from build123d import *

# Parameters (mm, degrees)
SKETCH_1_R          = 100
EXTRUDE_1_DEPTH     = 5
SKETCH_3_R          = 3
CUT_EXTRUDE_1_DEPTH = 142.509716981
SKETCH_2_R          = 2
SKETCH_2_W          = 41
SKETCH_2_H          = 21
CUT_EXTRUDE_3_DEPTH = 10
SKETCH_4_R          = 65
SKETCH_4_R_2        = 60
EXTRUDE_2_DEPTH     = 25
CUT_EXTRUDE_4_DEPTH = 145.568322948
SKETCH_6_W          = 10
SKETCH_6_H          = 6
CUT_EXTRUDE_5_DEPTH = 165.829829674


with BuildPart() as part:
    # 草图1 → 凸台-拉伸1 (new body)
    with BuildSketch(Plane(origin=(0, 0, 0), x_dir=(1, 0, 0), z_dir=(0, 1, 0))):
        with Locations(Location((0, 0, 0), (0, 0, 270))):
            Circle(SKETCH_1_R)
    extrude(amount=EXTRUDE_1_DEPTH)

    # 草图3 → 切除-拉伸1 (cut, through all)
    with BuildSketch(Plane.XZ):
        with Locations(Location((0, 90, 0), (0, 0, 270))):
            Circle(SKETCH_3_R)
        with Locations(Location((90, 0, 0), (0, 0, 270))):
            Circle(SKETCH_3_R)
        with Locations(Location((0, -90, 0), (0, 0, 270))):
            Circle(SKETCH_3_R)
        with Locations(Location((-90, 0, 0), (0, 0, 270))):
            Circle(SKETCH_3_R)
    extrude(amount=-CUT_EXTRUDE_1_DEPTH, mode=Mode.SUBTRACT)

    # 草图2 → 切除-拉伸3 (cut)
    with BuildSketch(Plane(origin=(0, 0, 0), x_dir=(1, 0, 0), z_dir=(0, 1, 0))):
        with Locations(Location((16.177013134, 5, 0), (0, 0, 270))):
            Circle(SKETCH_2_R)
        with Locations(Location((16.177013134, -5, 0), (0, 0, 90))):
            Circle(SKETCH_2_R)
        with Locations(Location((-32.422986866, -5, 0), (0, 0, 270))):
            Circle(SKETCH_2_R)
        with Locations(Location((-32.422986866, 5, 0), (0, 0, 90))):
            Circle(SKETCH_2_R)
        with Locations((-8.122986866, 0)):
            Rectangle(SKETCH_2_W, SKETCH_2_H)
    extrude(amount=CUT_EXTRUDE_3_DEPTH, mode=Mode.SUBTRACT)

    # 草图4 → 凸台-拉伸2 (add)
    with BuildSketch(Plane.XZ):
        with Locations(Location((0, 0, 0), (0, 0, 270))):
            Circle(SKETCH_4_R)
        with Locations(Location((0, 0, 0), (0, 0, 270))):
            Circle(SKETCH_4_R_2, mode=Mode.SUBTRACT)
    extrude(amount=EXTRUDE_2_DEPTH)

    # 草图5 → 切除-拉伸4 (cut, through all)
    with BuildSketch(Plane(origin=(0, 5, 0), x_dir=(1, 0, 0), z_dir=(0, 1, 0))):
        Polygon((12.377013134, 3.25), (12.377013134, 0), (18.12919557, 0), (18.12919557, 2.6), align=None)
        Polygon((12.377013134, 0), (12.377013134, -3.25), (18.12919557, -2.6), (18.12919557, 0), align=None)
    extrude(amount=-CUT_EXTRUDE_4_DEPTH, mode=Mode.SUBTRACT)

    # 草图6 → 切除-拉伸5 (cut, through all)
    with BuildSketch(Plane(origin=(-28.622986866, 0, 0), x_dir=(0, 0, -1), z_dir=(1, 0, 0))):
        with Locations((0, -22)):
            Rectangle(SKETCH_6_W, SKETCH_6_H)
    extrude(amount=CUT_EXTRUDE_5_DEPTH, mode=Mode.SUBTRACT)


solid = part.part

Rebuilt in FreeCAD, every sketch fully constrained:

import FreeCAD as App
import Part
import Sketcher
Q = App.Units.Quantity

doc = App.newDocument("Part")
params = doc.addObject("Spreadsheet::Sheet", "Params")
for row, (alias, value) in enumerate([
    ("sketch1_diameter", "200 mm"),
    ("pad1_length", "5 mm"),
    ("sketch2_diameter", "6 mm"),
    ("sketch3_diameter", "4 mm"),
    ("sketch3_width", "41 mm"),
    ("sketch3_height", "21 mm"),
    ("pocket2_length", "10 mm"),
    ("sketch4_diameter", "130 mm"),
    ("sketch4_diameter2", "120 mm"),
    ("pad2_length", "25 mm"),
    ("sketch5_height", "6.5 mm"),
    ("sketch5_height2", "5.2 mm"),
    ("sketch6_width", "6 mm"),
    ("sketch6_height", "10 mm"),
], start=1):
    params.set(f"A{row}", alias)
    params.set(f"B{row}", "=" + value)
    params.setAlias(f"B{row}", alias)

body = doc.addObject("PartDesign::Body", "Body")

sketch1 = body.newObject("Sketcher::SketchObject", "Sketch")
sketch1.AttachmentSupport = (doc.getObject("XZ_Plane"), [""])
sketch1.MapMode = "FlatFace"
sketch1.addGeometry(Part.Circle(App.Vector(0, 0, 0), App.Vector(0, 0, 1), 100), False)
sketch1.addConstraint([
    Sketcher.Constraint("Coincident", 0, 3, -1, 1),
    Sketcher.Constraint("Diameter", 0, Q("200 mm")),
])
sketch1.setExpression("Constraints[1]", "Params.sketch1_diameter")
pad1 = body.newObject("PartDesign::Pad", "Pad")
pad1.Profile = sketch1
pad1.setExpression("Length", "Params.pad1_length")
pad1.Reversed = True

sketch2 = body.newObject("Sketcher::SketchObject", "Sketch001")
sketch2.AttachmentSupport = (doc.getObject("XZ_Plane"), [""])
sketch2.MapMode = "FlatFace"
sketch2.addGeometry([
    Part.Circle(App.Vector(0, 90, 0), App.Vector(0, 0, 1), 3),
    Part.Circle(App.Vector(90, 0, 0), App.Vector(0, 0, 1), 3),
    Part.Circle(App.Vector(0, -90, 0), App.Vector(0, 0, 1), 3),
    Part.Circle(App.Vector(-90, 0, 0), App.Vector(0, 0, 1), 3),
], False)
sketch2.addConstraint([
    Sketcher.Constraint("Equal", 0, 1),
    Sketcher.Constraint("Equal", 1, 2),
    Sketcher.Constraint("Equal", 2, 3),
    Sketcher.Constraint("Symmetric", 0, 3, 2, 3, -1, 1),
    Sketcher.Constraint("Symmetric", 1, 3, 3, 3, -1, 1),
    Sketcher.Constraint("PointOnObject", 0, 3, -2),
    Sketcher.Constraint("PointOnObject", 1, 3, -1),
    Sketcher.Constraint("Diameter", 0, Q("6 mm")),
    Sketcher.Constraint("DistanceY", -1, 1, 0, 3, Q("90 mm")),
    Sketcher.Constraint("DistanceX", -1, 1, 1, 3, Q("90 mm")),
])
sketch2.setExpression("Constraints[7]", "Params.sketch2_diameter")
pocket1 = body.newObject("PartDesign::Pocket", "Pocket")
pocket1.Profile = sketch2
pocket1.Type = "ThroughAll"

sketch3 = body.newObject("Sketcher::SketchObject", "Sketch002")
sketch3.AttachmentSupport = (doc.getObject("XZ_Plane"), [""])
sketch3.MapMode = "FlatFace"
sketch3.addGeometry([
    Part.Circle(App.Vector(16.2, -5, 0), App.Vector(0, 0, 1), 2),
    Part.Circle(App.Vector(16.2, 5, 0), App.Vector(0, 0, 1), 2),
    Part.Circle(App.Vector(-32.4, 5, 0), App.Vector(0, 0, 1), 2),
    Part.Circle(App.Vector(-32.4, -5, 0), App.Vector(0, 0, 1), 2),
    Part.LineSegment(App.Vector(-28.6, -10.5, 0), App.Vector(-28.6, 10.5, 0)),
    Part.LineSegment(App.Vector(-28.6, 10.5, 0), App.Vector(12.4, 10.5, 0)),
    Part.LineSegment(App.Vector(12.4, 10.5, 0), App.Vector(12.4, -10.5, 0)),
    Part.LineSegment(App.Vector(12.4, -10.5, 0), App.Vector(-28.6, -10.5, 0)),
], False)
sketch3.addConstraint([
    Sketcher.Constraint("Coincident", 4, 2, 5, 1),
    Sketcher.Constraint("Coincident", 5, 2, 6, 1),
    Sketcher.Constraint("Coincident", 6, 2, 7, 1),
    Sketcher.Constraint("Coincident", 7, 2, 4, 1),
    Sketcher.Constraint("Vertical", 4),
    Sketcher.Constraint("Horizontal", 5),
    Sketcher.Constraint("Vertical", 6),
    Sketcher.Constraint("Horizontal", 7),
    Sketcher.Constraint("Equal", 0, 1),
    Sketcher.Constraint("Equal", 1, 2),
    Sketcher.Constraint("Equal", 2, 3),
    Sketcher.Constraint("Symmetric", 0, 3, 1, 3, -1),
    Sketcher.Constraint("Symmetric", 2, 3, 3, 3, -1),
    Sketcher.Constraint("Horizontal", 1, 3, 2, 3),
    Sketcher.Constraint("Diameter", 0, Q("4 mm")),
    Sketcher.Constraint("DistanceX", 5, 1, 5, 2, Q("41 mm")),
    Sketcher.Constraint("DistanceY", 4, 1, 4, 2, Q("21 mm")),
    Sketcher.Constraint("DistanceY", 0, 3, -1, 1, Q("5 mm")),
    Sketcher.Constraint("DistanceY", -1, 1, 4, 2, Q("10.5 mm")),
    Sketcher.Constraint("DistanceX", 2, 3, 1, 3, Q("48.6 mm")),
    Sketcher.Constraint("DistanceX", 2, 3, 4, 2, Q("3.8 mm")),
    Sketcher.Constraint("DistanceX", -1, 1, 0, 3, Q("16.177013 mm")),
])
sketch3.setExpression("Constraints[14]", "Params.sketch3_diameter")
sketch3.setExpression("Constraints[15]", "Params.sketch3_width")
sketch3.setExpression("Constraints[16]", "Params.sketch3_height")
pocket2 = body.newObject("PartDesign::Pocket", "Pocket001")
pocket2.Profile = sketch3
pocket2.setExpression("Length", "Params.pocket2_length")

sketch4 = body.newObject("Sketcher::SketchObject", "Sketch003")
sketch4.AttachmentSupport = (doc.getObject("XZ_Plane"), [""])
sketch4.MapMode = "FlatFace"
sketch4.addGeometry([
    Part.Circle(App.Vector(0, 0, 0), App.Vector(0, 0, 1), 65),
    Part.Circle(App.Vector(0, 0, 0), App.Vector(0, 0, 1), 60),
], False)
sketch4.addConstraint([
    Sketcher.Constraint("Coincident", 0, 3, -1, 1),
    Sketcher.Constraint("Coincident", 1, 3, -1, 1),
    Sketcher.Constraint("Diameter", 0, Q("130 mm")),
    Sketcher.Constraint("Diameter", 1, Q("120 mm")),
])
sketch4.setExpression("Constraints[2]", "Params.sketch4_diameter")
sketch4.setExpression("Constraints[3]", "Params.sketch4_diameter2")
pad2 = body.newObject("PartDesign::Pad", "Pad001")
pad2.Profile = sketch4
pad2.setExpression("Length", "Params.pad2_length")

sketch5 = body.newObject("Sketcher::SketchObject", "Sketch004")
sketch5.AttachmentSupport = (doc.getObject("XZ_Plane"), [""])
sketch5.MapMode = "FlatFace"
sketch5.AttachmentOffset = App.Placement(App.Vector(0, 0, -5), App.Rotation())
sketch5.addGeometry([
    Part.LineSegment(App.Vector(12.377013, -3.25, 0), App.Vector(12.377013, 3.25, 0)),
    Part.LineSegment(App.Vector(12.377013, 3.25, 0), App.Vector(18.129196, 2.6, 0)),
    Part.LineSegment(App.Vector(18.129196, 2.6, 0), App.Vector(18.129196, -2.6, 0)),
    Part.LineSegment(App.Vector(18.129196, -2.6, 0), App.Vector(12.377013, -3.25, 0)),
], False)
sketch5.addConstraint([
    Sketcher.Constraint("Coincident", 0, 2, 1, 1),
    Sketcher.Constraint("Coincident", 1, 2, 2, 1),
    Sketcher.Constraint("Coincident", 2, 2, 3, 1),
    Sketcher.Constraint("Coincident", 3, 2, 0, 1),
    Sketcher.Constraint("Vertical", 0),
    Sketcher.Constraint("Vertical", 2),
    Sketcher.Constraint("Equal", 1, 3),
    Sketcher.Constraint("DistanceY", 0, 1, 0, 2, Q("6.5 mm")),
    Sketcher.Constraint("DistanceY", 2, 2, 2, 1, Q("5.2 mm")),
    Sketcher.Constraint("DistanceY", -1, 1, 1, 2, Q("2.6 mm")),
    Sketcher.Constraint("Distance", 1, Q("5.788791 mm")),
    Sketcher.Constraint("DistanceX", -1, 1, 0, 2, Q("12.377013 mm")),
])
sketch5.setExpression("Constraints[7]", "Params.sketch5_height")
sketch5.setExpression("Constraints[8]", "Params.sketch5_height2")
pocket3 = body.newObject("PartDesign::Pocket", "Pocket002")
pocket3.Profile = sketch5
pocket3.Type = "ThroughAll"
pocket3.Reversed = True

sketch6 = body.newObject("Sketcher::SketchObject", "Sketch005")
sketch6.AttachmentSupport = (doc.getObject("YZ_Plane"), [""])
sketch6.MapMode = "FlatFace"
sketch6.AttachmentOffset = App.Placement(App.Vector(0, 0, -28.622987), App.Rotation())
sketch6.addGeometry([
    Part.LineSegment(App.Vector(-19, 5, 0), App.Vector(-25, 5, 0)),
    Part.LineSegment(App.Vector(-25, 5, 0), App.Vector(-25, -5, 0)),
    Part.LineSegment(App.Vector(-25, -5, 0), App.Vector(-19, -5, 0)),
    Part.LineSegment(App.Vector(-19, -5, 0), App.Vector(-19, 5, 0)),
], False)
sketch6.addConstraint([
    Sketcher.Constraint("Coincident", 0, 2, 1, 1),
    Sketcher.Constraint("Coincident", 1, 2, 2, 1),
    Sketcher.Constraint("Coincident", 2, 2, 3, 1),
    Sketcher.Constraint("Coincident", 3, 2, 0, 1),
    Sketcher.Constraint("Horizontal", 0),
    Sketcher.Constraint("Vertical", 1),
    Sketcher.Constraint("Horizontal", 2),
    Sketcher.Constraint("Vertical", 3),
    Sketcher.Constraint("DistanceX", 0, 2, 0, 1, Q("6 mm")),
    Sketcher.Constraint("DistanceY", 1, 2, 1, 1, Q("10 mm")),
    Sketcher.Constraint("DistanceX", 0, 2, -1, 1, Q("25 mm")),
    Sketcher.Constraint("DistanceY", -1, 1, 0, 2, Q("5 mm")),
])
sketch6.setExpression("Constraints[8]", "Params.sketch6_width")
sketch6.setExpression("Constraints[9]", "Params.sketch6_height")
pocket4 = body.newObject("PartDesign::Pocket", "Pocket003")
pocket4.Profile = sketch6
pocket4.Type = "ThroughAll"
pocket4.Reversed = True

doc.recompute()
